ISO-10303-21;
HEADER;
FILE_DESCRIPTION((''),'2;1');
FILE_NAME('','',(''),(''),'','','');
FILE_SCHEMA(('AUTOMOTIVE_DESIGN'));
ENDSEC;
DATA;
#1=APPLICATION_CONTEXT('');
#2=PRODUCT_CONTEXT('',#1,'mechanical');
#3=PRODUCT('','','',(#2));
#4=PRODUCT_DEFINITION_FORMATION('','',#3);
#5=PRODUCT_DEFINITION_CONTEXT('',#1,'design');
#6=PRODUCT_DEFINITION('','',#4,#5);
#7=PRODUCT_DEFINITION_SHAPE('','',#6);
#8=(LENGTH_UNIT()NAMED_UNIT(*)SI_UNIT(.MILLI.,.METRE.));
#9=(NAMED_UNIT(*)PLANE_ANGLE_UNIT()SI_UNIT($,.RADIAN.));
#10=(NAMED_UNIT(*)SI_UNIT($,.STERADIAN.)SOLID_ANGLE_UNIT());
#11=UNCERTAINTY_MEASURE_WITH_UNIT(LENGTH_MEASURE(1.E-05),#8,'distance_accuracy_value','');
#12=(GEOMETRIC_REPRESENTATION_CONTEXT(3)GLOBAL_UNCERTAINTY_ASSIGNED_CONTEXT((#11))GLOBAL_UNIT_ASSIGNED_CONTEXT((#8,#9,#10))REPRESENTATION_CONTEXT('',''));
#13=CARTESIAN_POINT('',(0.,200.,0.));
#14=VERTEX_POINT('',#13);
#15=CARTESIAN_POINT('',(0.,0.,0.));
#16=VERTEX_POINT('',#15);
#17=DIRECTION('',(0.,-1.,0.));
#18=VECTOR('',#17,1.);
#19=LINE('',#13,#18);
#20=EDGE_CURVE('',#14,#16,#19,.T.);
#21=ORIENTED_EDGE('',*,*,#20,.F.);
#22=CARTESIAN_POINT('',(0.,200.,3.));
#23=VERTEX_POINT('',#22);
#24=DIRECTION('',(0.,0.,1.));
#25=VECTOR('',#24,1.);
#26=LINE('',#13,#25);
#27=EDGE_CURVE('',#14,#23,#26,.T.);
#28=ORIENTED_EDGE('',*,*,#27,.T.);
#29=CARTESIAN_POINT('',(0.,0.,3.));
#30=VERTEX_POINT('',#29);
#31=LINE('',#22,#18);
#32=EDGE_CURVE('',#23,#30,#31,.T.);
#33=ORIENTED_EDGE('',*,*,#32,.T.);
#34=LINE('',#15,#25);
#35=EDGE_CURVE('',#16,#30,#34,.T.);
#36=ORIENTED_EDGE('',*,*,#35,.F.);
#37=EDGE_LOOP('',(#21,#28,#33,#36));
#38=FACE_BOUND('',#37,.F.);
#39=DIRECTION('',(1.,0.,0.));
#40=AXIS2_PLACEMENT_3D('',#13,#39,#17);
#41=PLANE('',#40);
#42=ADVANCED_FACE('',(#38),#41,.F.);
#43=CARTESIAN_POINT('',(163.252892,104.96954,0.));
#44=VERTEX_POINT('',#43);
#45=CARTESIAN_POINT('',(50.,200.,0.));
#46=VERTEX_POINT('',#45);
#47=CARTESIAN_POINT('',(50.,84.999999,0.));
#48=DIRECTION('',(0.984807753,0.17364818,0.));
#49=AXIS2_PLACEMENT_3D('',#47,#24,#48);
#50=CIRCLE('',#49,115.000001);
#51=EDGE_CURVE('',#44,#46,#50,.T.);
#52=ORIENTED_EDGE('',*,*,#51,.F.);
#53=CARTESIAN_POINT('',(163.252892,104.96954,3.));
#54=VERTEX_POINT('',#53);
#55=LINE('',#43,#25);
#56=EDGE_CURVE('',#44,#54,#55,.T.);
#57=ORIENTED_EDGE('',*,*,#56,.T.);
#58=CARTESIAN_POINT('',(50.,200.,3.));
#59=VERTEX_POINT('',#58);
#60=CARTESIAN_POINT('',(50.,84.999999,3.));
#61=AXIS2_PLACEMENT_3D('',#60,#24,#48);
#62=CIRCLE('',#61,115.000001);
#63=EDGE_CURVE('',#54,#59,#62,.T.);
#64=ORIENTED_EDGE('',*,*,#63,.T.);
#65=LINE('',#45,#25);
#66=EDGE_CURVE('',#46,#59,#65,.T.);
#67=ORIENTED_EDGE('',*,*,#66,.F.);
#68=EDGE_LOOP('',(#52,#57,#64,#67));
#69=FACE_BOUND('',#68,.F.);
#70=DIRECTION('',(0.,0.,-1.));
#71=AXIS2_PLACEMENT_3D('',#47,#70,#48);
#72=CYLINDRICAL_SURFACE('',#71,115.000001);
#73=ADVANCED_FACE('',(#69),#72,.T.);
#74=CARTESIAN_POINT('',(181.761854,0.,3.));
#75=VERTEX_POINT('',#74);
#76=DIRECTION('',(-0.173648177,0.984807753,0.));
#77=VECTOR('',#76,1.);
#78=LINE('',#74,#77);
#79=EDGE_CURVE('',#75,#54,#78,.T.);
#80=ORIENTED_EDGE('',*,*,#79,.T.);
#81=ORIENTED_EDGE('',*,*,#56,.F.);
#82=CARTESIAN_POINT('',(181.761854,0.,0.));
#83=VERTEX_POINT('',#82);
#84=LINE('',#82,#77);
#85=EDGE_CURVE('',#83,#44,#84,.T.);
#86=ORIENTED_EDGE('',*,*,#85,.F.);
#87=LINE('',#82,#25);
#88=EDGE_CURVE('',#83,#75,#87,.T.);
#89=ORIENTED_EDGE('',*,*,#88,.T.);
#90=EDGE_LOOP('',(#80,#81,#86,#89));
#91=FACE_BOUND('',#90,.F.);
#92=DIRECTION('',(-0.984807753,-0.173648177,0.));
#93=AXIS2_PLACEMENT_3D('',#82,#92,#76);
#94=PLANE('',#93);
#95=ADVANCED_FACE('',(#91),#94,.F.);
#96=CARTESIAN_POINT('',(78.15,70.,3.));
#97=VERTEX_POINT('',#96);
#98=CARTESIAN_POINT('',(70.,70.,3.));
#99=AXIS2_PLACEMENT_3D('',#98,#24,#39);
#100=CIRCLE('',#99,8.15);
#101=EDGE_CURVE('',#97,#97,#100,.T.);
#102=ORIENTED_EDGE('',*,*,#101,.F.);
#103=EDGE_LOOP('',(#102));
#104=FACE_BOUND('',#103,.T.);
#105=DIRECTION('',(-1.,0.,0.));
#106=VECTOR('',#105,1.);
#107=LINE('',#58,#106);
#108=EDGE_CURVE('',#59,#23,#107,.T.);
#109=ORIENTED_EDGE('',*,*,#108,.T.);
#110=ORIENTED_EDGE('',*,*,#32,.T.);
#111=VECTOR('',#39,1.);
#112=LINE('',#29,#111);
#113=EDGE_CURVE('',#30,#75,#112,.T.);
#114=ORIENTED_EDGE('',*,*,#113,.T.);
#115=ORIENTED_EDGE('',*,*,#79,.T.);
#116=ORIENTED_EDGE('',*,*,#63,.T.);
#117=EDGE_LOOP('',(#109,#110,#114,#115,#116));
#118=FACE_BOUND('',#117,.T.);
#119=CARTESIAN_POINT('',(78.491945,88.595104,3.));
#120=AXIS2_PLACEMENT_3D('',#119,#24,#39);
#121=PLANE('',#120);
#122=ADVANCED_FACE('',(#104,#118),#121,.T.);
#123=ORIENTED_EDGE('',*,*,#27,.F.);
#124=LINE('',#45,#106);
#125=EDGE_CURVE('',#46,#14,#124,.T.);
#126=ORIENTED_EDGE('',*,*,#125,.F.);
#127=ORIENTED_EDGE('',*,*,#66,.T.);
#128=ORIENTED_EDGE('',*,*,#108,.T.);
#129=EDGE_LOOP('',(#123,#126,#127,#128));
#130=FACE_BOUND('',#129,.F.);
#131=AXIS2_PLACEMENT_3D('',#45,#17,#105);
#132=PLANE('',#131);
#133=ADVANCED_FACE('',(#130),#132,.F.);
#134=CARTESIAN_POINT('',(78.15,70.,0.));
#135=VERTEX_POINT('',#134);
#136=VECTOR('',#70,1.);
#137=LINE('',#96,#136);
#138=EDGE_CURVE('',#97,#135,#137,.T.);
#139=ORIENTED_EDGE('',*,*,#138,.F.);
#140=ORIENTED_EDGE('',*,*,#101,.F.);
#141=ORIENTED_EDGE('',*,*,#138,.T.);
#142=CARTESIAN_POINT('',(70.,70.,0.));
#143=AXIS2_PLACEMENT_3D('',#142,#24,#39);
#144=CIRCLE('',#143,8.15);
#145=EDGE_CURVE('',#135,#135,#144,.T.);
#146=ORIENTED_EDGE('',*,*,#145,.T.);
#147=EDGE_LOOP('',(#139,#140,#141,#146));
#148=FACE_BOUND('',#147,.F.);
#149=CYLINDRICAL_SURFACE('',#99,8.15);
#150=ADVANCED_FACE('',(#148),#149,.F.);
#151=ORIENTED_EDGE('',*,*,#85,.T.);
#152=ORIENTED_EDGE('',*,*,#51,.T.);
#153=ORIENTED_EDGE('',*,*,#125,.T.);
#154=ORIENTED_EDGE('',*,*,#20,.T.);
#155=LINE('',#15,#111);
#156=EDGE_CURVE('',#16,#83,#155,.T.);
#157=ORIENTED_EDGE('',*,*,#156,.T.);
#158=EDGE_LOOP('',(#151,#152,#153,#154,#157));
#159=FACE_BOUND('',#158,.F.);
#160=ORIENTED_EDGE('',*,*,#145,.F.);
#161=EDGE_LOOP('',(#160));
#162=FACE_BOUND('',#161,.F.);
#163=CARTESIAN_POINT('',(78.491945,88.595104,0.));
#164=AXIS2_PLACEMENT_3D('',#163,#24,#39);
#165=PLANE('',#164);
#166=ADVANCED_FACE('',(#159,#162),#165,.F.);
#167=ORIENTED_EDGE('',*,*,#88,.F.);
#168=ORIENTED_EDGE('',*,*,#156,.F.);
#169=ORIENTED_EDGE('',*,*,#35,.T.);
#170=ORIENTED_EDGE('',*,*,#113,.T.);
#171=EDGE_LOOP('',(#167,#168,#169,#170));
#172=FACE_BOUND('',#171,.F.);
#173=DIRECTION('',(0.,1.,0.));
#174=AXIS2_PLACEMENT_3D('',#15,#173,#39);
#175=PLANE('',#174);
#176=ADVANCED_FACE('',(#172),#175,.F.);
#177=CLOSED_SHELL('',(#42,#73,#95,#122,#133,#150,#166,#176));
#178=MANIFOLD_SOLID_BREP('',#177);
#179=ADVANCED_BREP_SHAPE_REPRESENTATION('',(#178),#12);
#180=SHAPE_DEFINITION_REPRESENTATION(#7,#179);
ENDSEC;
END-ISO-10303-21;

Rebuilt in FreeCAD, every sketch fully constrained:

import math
import FreeCAD as App
import Part
import Sketcher

V = App.Vector
Q = App.Units.Quantity

doc = App.newDocument("Part")
body = doc.addObject("PartDesign::Body", "Body")

sketch1 = doc.addObject("Sketcher::SketchObject", "Sketch")
body.addObject(sketch1)
sketch1.AttachmentSupport = (doc.XY_Plane, [""])
sketch1.MapMode = "FlatFace"
sketch1.addGeometry([
    Part.LineSegment(V(0, 200, 0), V(0, 0, 0)),
    Part.LineSegment(V(0, 0, 0), V(181.761854, 0, 0)),
    Part.LineSegment(V(181.761854, 0, 0), V(163.252892, 104.96954, 0)),
    Part.ArcOfCircle(Part.Circle(V(50, 84.999999, 0), V(0, 0, 1), 115.000001), math.radians(10), math.radians(90)),
    Part.LineSegment(V(50, 200, 0), V(0, 200, 0)),
], False)
sketch1.addConstraint([
    Sketcher.Constraint("Coincident", 0, 2, 1, 1),
    Sketcher.Constraint("Coincident", 1, 2, 2, 1),
    Sketcher.Constraint("Tangent", 2, 2, 3, 1),
    Sketcher.Constraint("Tangent", 3, 2, 4, 1),
    Sketcher.Constraint("Coincident", 4, 2, 0, 1),
    Sketcher.Constraint("Vertical", 0),
    Sketcher.Constraint("Horizontal", 1),
    Sketcher.Constraint("Horizontal", 4),
    Sketcher.Constraint("Coincident", 0, 2, -1, 1),
    Sketcher.Constraint("Radius", 3, Q("115.000001 mm")),
    Sketcher.Constraint("DistanceX", 4, 2, 4, 1, Q("50 mm")),
    Sketcher.Constraint("DistanceY", 0, 2, 0, 1, Q("200 mm")),
    Sketcher.Constraint("Angle", 2, Q("100 deg")),
])
pad1 = doc.addObject("PartDesign::Pad", "Pad")
body.addObject(pad1)
pad1.Profile = sketch1
pad1.Length = 3

sketch2 = doc.addObject("Sketcher::SketchObject", "Sketch001")
body.addObject(sketch2)
sketch2.AttachmentSupport = (doc.XY_Plane, [""])
sketch2.MapMode = "FlatFace"
sketch2.AttachmentOffset = App.Placement(V(0, 0, 3), App.Rotation())
sketch2.addGeometry(Part.Circle(V(70, 70, 0), V(0, 0, 1), 8.15), False)
sketch2.addConstraint([
    Sketcher.Constraint("Diameter", 0, Q("16.3 mm")),
    Sketcher.Constraint("DistanceX", -1, 1, 0, 3, Q("70 mm")),
    Sketcher.Constraint("DistanceY", -1, 1, 0, 3, Q("70 mm")),
])
pocket1 = doc.addObject("PartDesign::Pocket", "Pocket")
body.addObject(pocket1)
pocket1.Profile = sketch2
pocket1.Length = 25

doc.recompute()
